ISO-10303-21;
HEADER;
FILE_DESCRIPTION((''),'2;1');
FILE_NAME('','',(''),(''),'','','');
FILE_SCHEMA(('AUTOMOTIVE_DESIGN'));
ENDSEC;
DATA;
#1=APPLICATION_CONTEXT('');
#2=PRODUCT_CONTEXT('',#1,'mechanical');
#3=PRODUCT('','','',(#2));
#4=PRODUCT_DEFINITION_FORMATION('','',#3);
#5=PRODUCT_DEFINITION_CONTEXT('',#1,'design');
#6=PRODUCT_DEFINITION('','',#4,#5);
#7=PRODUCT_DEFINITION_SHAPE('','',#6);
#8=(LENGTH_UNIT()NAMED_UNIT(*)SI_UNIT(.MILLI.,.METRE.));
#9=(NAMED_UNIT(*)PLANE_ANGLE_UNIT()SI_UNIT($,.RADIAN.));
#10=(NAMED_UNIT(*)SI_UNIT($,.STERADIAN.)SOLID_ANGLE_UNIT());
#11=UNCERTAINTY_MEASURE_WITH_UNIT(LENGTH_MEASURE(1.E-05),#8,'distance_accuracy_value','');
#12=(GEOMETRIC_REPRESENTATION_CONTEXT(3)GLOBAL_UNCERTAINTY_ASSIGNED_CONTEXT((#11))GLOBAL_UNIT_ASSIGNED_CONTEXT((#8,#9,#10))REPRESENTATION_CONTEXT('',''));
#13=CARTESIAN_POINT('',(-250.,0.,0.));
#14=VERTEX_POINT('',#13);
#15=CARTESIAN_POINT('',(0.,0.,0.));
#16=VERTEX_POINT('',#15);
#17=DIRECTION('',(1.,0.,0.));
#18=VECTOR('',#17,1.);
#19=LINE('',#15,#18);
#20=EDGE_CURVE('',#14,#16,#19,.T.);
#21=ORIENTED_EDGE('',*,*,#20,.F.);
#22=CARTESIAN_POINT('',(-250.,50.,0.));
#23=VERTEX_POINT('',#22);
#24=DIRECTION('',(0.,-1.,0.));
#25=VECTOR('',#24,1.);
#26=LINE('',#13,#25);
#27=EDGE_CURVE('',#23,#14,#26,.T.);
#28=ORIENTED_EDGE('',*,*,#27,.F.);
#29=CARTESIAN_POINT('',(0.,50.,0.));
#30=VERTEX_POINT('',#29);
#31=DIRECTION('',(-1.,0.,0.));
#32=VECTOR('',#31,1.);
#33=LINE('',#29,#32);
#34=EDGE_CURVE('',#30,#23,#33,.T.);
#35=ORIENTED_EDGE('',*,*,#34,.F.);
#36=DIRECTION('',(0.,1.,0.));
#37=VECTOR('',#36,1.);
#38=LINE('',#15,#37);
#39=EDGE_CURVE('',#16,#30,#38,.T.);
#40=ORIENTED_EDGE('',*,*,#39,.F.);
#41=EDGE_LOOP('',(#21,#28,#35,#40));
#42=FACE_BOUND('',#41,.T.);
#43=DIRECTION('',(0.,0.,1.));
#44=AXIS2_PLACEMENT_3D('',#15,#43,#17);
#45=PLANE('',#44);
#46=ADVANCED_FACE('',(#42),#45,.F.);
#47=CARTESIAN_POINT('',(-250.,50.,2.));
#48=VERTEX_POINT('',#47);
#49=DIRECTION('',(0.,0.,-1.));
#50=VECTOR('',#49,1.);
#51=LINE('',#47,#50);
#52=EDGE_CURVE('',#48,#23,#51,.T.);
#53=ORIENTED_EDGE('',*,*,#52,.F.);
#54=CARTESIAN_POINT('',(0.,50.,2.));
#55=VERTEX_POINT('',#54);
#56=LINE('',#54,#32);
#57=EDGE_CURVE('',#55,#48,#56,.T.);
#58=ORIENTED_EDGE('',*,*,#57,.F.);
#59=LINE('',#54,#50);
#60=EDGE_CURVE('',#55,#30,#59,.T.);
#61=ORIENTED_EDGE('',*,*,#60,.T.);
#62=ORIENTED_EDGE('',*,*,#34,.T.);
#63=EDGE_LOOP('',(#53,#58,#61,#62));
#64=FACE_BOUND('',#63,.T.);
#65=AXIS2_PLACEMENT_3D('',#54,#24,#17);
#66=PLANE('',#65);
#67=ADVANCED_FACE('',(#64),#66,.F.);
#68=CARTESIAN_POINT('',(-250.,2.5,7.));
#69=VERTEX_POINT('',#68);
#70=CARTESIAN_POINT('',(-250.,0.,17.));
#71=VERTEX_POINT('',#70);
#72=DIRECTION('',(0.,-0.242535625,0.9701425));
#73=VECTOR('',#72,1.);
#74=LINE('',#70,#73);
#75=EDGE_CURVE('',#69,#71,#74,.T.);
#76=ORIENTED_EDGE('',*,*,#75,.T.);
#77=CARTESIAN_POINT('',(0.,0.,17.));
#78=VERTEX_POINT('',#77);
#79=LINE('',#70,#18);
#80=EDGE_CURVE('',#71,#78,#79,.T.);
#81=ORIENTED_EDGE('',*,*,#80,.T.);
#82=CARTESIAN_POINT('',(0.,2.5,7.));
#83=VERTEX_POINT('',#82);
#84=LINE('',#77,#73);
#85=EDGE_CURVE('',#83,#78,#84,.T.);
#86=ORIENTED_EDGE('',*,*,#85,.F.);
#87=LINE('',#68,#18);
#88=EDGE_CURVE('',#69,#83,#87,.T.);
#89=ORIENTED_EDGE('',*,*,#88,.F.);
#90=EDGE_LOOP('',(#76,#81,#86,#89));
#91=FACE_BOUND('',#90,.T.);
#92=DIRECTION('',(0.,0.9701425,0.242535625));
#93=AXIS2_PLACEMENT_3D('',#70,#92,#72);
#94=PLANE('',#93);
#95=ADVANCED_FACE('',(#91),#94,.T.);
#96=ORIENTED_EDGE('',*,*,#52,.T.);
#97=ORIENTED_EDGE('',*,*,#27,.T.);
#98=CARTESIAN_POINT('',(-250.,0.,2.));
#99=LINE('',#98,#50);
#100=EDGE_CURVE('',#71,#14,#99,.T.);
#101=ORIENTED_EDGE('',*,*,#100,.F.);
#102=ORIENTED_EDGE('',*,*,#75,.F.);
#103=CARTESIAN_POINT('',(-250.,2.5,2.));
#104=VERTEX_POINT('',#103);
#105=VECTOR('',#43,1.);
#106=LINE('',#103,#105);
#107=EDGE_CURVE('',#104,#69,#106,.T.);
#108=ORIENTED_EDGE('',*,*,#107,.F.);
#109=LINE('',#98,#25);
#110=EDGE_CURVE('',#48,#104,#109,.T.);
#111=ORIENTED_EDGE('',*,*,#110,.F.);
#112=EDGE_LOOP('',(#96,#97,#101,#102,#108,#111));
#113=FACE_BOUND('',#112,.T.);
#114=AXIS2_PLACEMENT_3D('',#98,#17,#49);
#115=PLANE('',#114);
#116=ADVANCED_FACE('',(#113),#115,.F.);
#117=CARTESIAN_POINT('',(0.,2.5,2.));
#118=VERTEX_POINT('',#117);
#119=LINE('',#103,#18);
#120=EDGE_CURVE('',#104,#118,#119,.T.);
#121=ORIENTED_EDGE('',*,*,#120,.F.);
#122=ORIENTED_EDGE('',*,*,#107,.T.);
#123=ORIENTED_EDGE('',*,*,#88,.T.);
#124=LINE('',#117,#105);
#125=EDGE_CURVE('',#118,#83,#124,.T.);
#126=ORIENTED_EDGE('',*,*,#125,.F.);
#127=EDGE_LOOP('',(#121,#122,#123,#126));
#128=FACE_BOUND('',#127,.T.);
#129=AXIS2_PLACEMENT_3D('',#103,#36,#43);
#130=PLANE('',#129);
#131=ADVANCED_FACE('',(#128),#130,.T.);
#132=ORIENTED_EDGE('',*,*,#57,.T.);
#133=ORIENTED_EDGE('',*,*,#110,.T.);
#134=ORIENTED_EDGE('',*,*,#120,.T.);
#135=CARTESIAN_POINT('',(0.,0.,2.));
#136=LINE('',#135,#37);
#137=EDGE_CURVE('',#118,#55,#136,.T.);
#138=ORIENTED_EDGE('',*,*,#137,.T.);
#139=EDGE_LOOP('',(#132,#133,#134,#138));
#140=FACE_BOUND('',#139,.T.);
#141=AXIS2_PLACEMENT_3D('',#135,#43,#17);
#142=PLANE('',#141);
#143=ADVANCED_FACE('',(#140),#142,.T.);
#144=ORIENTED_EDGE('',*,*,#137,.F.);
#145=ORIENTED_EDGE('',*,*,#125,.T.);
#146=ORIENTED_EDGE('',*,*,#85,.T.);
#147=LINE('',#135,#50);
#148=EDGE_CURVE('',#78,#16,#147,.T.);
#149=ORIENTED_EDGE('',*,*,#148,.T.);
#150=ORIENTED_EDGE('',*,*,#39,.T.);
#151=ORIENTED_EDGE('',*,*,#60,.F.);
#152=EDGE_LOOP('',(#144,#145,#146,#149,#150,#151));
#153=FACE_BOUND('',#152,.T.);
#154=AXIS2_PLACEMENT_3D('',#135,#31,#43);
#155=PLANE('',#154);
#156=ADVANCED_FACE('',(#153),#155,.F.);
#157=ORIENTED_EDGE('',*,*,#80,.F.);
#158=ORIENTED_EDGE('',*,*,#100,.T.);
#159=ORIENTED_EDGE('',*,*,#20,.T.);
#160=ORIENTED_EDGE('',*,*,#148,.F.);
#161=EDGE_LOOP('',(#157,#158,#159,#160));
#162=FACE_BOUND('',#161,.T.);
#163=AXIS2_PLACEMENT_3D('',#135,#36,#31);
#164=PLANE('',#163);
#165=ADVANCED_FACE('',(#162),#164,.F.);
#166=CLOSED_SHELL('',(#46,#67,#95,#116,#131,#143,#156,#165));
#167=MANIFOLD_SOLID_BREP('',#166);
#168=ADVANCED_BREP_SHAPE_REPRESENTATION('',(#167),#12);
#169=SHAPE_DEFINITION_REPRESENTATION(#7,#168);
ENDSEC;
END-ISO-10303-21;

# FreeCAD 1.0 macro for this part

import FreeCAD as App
import Part
import Sketcher
from FreeCAD import Vector
Q = App.Units.Quantity

doc = App.newDocument("Part")
params = doc.addObject("Spreadsheet::Sheet", "Params")
for row, (alias, value) in enumerate([
    ("sketch1_width", "250 mm"),
    ("sketch1_height", "50 mm"),
    ("pad1_length", "2 mm"),
    ("sketch2_height", "15 mm"),
    ("sketch2_height2", "5 mm"),
    ("sketch2_width", "2.5 mm"),
    ("pad2_length", "250 mm"),
], start=1):
    params.set(f"A{row}", alias)
    params.set(f"B{row}", "=" + value)
    params.setAlias(f"B{row}", alias)

body = doc.addObject("PartDesign::Body", "Body")

# Sketch on XY plane
sketch1 = body.newObject("Sketcher::SketchObject", "Sketch")
sketch1.AttachmentSupport = (doc.getObject("XY_Plane"), [""])
sketch1.MapMode = "FlatFace"
sketch1.addGeometry(Part.LineSegment(Vector(-250, 50, 0), Vector(-250, 0, 0)), False)
sketch1.addGeometry(Part.LineSegment(Vector(-250, 0, 0), Vector(0, 0, 0)), False)
sketch1.addGeometry(Part.LineSegment(Vector(0, 0, 0), Vector(0, 50, 0)), False)
sketch1.addGeometry(Part.LineSegment(Vector(0, 50, 0), Vector(-250, 50, 0)), False)
sketch1.addConstraint(Sketcher.Constraint("Coincident", 0, 2, 1, 1))
sketch1.addConstraint(Sketcher.Constraint("Coincident", 1, 2, 2, 1))
sketch1.addConstraint(Sketcher.Constraint("Coincident", 2, 2, 3, 1))
sketch1.addConstraint(Sketcher.Constraint("Coincident", 3, 2, 0, 1))
sketch1.addConstraint(Sketcher.Constraint("Vertical", 0))
sketch1.addConstraint(Sketcher.Constraint("Horizontal", 1))
sketch1.addConstraint(Sketcher.Constraint("Vertical", 2))
sketch1.addConstraint(Sketcher.Constraint("Horizontal", 3))
sketch1.addConstraint(Sketcher.Constraint("Coincident", 1, 2, -1, 1))
sketch1.addConstraint(Sketcher.Constraint("DistanceX", 1, 1, 1, 2, Q("250 mm")))
sketch1.addConstraint(Sketcher.Constraint("DistanceY", 0, 2, 0, 1, Q("50 mm")))
sketch1.setExpression("Constraints[9]", "Params.sketch1_width")
sketch1.setExpression("Constraints[10]", "Params.sketch1_height")
pad1 = body.newObject("PartDesign::Pad", "Pad")
pad1.Profile = sketch1
pad1.setExpression("Length", "Params.pad1_length")

# Sketch on YZ plane
sketch2 = body.newObject("Sketcher::SketchObject", "Sketch001")
sketch2.AttachmentSupport = (doc.getObject("YZ_Plane"), [""])
sketch2.MapMode = "FlatFace"
sketch2.addGeometry(Part.LineSegment(Vector(0, 17, 0), Vector(0, 2, 0)), False)
sketch2.addGeometry(Part.LineSegment(Vector(0, 2, 0), Vector(2.5, 2, 0)), False)
sketch2.addGeometry(Part.LineSegment(Vector(2.5, 2, 0), Vector(2.5, 7, 0)), False)
sketch2.addGeometry(Part.LineSegment(Vector(2.5, 7, 0), Vector(0, 17, 0)), False)
sketch2.addConstraint(Sketcher.Constraint("Coincident", 0, 2, 1, 1))
sketch2.addConstraint(Sketcher.Constraint("Coincident", 1, 2, 2, 1))
sketch2.addConstraint(Sketcher.Constraint("Coincident", 2, 2, 3, 1))
sketch2.addConstraint(Sketcher.Constraint("Coincident", 3, 2, 0, 1))
sketch2.addConstraint(Sketcher.Constraint("Vertical", 0))
sketch2.addConstraint(Sketcher.Constraint("Horizontal", 1))
sketch2.addConstraint(Sketcher.Constraint("Vertical", 2))
sketch2.addConstraint(Sketcher.Constraint("PointOnObject", 0, 2, -2))
sketch2.addConstraint(Sketcher.Constraint("DistanceY", 0, 2, 0, 1, Q("15 mm")))
sketch2.addConstraint(Sketcher.Constraint("DistanceY", 2, 1, 2, 2, Q("5 mm")))
sketch2.addConstraint(Sketcher.Constraint("DistanceX", 1, 1, 1, 2, Q("2.5 mm")))
sketch2.addConstraint(Sketcher.Constraint("DistanceY", -1, 1, 0, 2, Q("2 mm")))
sketch2.setExpression("Constraints[8]", "Params.sketch2_height")
sketch2.setExpression("Constraints[9]", "Params.sketch2_height2")
sketch2.setExpression("Constraints[10]", "Params.sketch2_width")
pad2 = body.newObject("PartDesign::Pad", "Pad001")
pad2.Profile = sketch2
pad2.setExpression("Length", "Params.pad2_length")
pad2.Reversed = True

doc.recompute()
